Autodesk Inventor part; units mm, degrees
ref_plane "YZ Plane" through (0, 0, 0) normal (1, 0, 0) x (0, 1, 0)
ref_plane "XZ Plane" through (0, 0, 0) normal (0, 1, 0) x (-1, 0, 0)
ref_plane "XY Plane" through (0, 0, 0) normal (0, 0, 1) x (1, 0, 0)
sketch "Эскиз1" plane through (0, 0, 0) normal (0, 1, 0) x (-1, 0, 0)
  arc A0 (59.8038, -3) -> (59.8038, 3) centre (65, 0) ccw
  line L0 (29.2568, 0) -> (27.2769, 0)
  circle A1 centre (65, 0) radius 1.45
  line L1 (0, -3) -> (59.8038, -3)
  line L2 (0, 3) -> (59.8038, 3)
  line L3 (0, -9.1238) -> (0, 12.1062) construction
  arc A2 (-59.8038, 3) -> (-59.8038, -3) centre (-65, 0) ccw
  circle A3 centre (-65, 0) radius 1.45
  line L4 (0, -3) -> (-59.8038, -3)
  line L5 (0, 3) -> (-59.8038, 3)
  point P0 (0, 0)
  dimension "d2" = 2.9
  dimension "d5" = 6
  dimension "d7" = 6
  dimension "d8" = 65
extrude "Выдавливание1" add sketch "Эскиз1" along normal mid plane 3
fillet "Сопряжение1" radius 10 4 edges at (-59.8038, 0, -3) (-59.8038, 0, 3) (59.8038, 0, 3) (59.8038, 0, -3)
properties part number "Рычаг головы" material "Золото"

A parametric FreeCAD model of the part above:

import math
import FreeCAD as App
import Part
import Sketcher
from FreeCAD import Vector
Q = App.Units.Quantity


def edges_at(feature, points):
    """Names of the edges that pass closest to the given points."""
    edges = feature.Shape.Edges
    near = lambda p: min(range(len(edges)), key=lambda i: edges[i].distToShape(Part.Vertex(*p))[0])
    return sorted({f"Edge{near(p) + 1}" for p in points})

doc = App.newDocument("Part")
params = doc.addObject("Spreadsheet::Sheet", "Params")
for row, (alias, value) in enumerate([
    ("sketch1_radius", "6 mm"),
    ("sketch1_diameter", "2.9 mm"),
    ("pad1_length", "3 mm"),
    ("fillet_radius", "10 mm"),
], start=1):
    params.set(f"A{row}", alias)
    params.set(f"B{row}", "=" + value)
    params.setAlias(f"B{row}", alias)

body = doc.addObject("PartDesign::Body", "Body")

sketch1 = doc.addObject("Sketcher::SketchObject", "Sketch")
body.addObject(sketch1)
sketch1.AttachmentSupport = (doc.XZ_Plane, [""])
sketch1.MapMode = "FlatFace"
sketch1.addGeometry([
    Part.LineSegment(Vector(59.8038, -3, 0), Vector(-59.8038, -3, 0)),
    Part.ArcOfCircle(Part.Circle(Vector(-65, 0, 0), Vector(0, 0, 1), 6.000041), math.radians(29.999773), math.radians(330.000227)),
    Part.LineSegment(Vector(-59.8038, 3, 0), Vector(59.8038, 3, 0)),
    Part.ArcOfCircle(Part.Circle(Vector(65, 0, 0), Vector(0, 0, 1), 6.000041), math.radians(-150.000227), math.radians(150.000227)),
    Part.Circle(Vector(65, 0, 0), Vector(0, 0, 1), 1.45),
    Part.Circle(Vector(-65, 0, 0), Vector(0, 0, 1), 1.45),
], False)
sketch1.addConstraint([
    Sketcher.Constraint("Coincident", 0, 2, 1, 2),
    Sketcher.Constraint("Coincident", 1, 1, 2, 1),
    Sketcher.Constraint("Coincident", 2, 2, 3, 2),
    Sketcher.Constraint("Coincident", 3, 1, 0, 1),
    Sketcher.Constraint("Horizontal", 0),
    Sketcher.Constraint("Horizontal", 2),
    Sketcher.Constraint("Coincident", 4, 3, 3, 3),
    Sketcher.Constraint("Coincident", 5, 3, 1, 3),
    Sketcher.Constraint("Equal", 1, 3),
    Sketcher.Constraint("Equal", 4, 5),
    Sketcher.Constraint("Symmetric", 1, 3, 3, 3, -1, 1),
    Sketcher.Constraint("Symmetric", 0, 2, 1, 1, -1),
    Sketcher.Constraint("Radius", 1, Q("6 mm")),
    Sketcher.Constraint("Diameter", 4, Q("2.9 mm")),
    Sketcher.Constraint("DistanceX", 1, 3, -1, 1, Q("65 mm")),
    Sketcher.Constraint("DistanceY", 0, 2, 1, 1, Q("6 mm")),
])
sketch1.setExpression("Constraints[12]", "Params.sketch1_radius")
sketch1.setExpression("Constraints[13]", "Params.sketch1_diameter")
pad1 = doc.addObject("PartDesign::Pad", "Pad")
body.addObject(pad1)
pad1.Profile = sketch1
pad1.setExpression("Length", "Params.pad1_length")
pad1.Midplane = True
doc.recompute()

fillet = doc.addObject("PartDesign::Fillet", "Fillet")
body.addObject(fillet)
fillet.Base = (pad1, edges_at(pad1, [
    (-59.804, 0, -3),
    (-59.804, 0, 3),
    (59.804, 0, 3),
    (59.804, 0, -3),
]))
fillet.setExpression("Radius", "Params.fillet_radius")

doc.recompute()
